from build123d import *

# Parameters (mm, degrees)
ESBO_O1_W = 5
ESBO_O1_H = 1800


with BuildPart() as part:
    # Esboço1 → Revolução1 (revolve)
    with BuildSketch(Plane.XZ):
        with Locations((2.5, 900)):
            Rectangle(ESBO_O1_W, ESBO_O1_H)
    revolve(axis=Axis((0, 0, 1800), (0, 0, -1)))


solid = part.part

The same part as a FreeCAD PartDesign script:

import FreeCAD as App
import Part
import Sketcher
from FreeCAD import Vector
Q = App.Units.Quantity


def add_polygon(sketch, points):
    """Adds a closed chain of lines whose ends are joined by coincident constraints."""
    first, n = sketch.GeometryCount, len(points)
    for a, b in zip(points, points[1:] + points[:1]):
        sketch.addGeometry(Part.LineSegment(App.Vector(*a, 0), App.Vector(*b, 0)), False)
    for i in range(n):
        sketch.addConstraint(Sketcher.Constraint("Coincident", first + i, 2, first + (i + 1) % n, 1))

doc = App.newDocument("Part")
body = doc.addObject("PartDesign::Body", "Body")

sketch1 = body.newObject("Sketcher::SketchObject", "Sketch")
sketch1.AttachmentSupport = (doc.getObject("XZ_Plane"), [""])
sketch1.MapMode = "FlatFace"
add_polygon(sketch1, [(0, 1800), (0, 0), (5, 0), (5, 1800)])
sketch1.addConstraint([
    Sketcher.Constraint("Vertical", 0),
    Sketcher.Constraint("Horizontal", 1),
    Sketcher.Constraint("Vertical", 2),
    Sketcher.Constraint("Horizontal", 3),
    Sketcher.Constraint("Coincident", 0, 2, -1, 1),
    Sketcher.Constraint("DistanceX", 1, 1, 1, 2, Q("5 mm")),
    Sketcher.Constraint("DistanceY", 0, 2, 0, 1, Q("1800 mm")),
])
revolution = body.newObject("PartDesign::Revolution", "Revolution")
revolution.Profile = sketch1
revolution.ReferenceAxis = (sketch1, ["V_Axis"])
revolution.Angle = 360

doc.recompute()
